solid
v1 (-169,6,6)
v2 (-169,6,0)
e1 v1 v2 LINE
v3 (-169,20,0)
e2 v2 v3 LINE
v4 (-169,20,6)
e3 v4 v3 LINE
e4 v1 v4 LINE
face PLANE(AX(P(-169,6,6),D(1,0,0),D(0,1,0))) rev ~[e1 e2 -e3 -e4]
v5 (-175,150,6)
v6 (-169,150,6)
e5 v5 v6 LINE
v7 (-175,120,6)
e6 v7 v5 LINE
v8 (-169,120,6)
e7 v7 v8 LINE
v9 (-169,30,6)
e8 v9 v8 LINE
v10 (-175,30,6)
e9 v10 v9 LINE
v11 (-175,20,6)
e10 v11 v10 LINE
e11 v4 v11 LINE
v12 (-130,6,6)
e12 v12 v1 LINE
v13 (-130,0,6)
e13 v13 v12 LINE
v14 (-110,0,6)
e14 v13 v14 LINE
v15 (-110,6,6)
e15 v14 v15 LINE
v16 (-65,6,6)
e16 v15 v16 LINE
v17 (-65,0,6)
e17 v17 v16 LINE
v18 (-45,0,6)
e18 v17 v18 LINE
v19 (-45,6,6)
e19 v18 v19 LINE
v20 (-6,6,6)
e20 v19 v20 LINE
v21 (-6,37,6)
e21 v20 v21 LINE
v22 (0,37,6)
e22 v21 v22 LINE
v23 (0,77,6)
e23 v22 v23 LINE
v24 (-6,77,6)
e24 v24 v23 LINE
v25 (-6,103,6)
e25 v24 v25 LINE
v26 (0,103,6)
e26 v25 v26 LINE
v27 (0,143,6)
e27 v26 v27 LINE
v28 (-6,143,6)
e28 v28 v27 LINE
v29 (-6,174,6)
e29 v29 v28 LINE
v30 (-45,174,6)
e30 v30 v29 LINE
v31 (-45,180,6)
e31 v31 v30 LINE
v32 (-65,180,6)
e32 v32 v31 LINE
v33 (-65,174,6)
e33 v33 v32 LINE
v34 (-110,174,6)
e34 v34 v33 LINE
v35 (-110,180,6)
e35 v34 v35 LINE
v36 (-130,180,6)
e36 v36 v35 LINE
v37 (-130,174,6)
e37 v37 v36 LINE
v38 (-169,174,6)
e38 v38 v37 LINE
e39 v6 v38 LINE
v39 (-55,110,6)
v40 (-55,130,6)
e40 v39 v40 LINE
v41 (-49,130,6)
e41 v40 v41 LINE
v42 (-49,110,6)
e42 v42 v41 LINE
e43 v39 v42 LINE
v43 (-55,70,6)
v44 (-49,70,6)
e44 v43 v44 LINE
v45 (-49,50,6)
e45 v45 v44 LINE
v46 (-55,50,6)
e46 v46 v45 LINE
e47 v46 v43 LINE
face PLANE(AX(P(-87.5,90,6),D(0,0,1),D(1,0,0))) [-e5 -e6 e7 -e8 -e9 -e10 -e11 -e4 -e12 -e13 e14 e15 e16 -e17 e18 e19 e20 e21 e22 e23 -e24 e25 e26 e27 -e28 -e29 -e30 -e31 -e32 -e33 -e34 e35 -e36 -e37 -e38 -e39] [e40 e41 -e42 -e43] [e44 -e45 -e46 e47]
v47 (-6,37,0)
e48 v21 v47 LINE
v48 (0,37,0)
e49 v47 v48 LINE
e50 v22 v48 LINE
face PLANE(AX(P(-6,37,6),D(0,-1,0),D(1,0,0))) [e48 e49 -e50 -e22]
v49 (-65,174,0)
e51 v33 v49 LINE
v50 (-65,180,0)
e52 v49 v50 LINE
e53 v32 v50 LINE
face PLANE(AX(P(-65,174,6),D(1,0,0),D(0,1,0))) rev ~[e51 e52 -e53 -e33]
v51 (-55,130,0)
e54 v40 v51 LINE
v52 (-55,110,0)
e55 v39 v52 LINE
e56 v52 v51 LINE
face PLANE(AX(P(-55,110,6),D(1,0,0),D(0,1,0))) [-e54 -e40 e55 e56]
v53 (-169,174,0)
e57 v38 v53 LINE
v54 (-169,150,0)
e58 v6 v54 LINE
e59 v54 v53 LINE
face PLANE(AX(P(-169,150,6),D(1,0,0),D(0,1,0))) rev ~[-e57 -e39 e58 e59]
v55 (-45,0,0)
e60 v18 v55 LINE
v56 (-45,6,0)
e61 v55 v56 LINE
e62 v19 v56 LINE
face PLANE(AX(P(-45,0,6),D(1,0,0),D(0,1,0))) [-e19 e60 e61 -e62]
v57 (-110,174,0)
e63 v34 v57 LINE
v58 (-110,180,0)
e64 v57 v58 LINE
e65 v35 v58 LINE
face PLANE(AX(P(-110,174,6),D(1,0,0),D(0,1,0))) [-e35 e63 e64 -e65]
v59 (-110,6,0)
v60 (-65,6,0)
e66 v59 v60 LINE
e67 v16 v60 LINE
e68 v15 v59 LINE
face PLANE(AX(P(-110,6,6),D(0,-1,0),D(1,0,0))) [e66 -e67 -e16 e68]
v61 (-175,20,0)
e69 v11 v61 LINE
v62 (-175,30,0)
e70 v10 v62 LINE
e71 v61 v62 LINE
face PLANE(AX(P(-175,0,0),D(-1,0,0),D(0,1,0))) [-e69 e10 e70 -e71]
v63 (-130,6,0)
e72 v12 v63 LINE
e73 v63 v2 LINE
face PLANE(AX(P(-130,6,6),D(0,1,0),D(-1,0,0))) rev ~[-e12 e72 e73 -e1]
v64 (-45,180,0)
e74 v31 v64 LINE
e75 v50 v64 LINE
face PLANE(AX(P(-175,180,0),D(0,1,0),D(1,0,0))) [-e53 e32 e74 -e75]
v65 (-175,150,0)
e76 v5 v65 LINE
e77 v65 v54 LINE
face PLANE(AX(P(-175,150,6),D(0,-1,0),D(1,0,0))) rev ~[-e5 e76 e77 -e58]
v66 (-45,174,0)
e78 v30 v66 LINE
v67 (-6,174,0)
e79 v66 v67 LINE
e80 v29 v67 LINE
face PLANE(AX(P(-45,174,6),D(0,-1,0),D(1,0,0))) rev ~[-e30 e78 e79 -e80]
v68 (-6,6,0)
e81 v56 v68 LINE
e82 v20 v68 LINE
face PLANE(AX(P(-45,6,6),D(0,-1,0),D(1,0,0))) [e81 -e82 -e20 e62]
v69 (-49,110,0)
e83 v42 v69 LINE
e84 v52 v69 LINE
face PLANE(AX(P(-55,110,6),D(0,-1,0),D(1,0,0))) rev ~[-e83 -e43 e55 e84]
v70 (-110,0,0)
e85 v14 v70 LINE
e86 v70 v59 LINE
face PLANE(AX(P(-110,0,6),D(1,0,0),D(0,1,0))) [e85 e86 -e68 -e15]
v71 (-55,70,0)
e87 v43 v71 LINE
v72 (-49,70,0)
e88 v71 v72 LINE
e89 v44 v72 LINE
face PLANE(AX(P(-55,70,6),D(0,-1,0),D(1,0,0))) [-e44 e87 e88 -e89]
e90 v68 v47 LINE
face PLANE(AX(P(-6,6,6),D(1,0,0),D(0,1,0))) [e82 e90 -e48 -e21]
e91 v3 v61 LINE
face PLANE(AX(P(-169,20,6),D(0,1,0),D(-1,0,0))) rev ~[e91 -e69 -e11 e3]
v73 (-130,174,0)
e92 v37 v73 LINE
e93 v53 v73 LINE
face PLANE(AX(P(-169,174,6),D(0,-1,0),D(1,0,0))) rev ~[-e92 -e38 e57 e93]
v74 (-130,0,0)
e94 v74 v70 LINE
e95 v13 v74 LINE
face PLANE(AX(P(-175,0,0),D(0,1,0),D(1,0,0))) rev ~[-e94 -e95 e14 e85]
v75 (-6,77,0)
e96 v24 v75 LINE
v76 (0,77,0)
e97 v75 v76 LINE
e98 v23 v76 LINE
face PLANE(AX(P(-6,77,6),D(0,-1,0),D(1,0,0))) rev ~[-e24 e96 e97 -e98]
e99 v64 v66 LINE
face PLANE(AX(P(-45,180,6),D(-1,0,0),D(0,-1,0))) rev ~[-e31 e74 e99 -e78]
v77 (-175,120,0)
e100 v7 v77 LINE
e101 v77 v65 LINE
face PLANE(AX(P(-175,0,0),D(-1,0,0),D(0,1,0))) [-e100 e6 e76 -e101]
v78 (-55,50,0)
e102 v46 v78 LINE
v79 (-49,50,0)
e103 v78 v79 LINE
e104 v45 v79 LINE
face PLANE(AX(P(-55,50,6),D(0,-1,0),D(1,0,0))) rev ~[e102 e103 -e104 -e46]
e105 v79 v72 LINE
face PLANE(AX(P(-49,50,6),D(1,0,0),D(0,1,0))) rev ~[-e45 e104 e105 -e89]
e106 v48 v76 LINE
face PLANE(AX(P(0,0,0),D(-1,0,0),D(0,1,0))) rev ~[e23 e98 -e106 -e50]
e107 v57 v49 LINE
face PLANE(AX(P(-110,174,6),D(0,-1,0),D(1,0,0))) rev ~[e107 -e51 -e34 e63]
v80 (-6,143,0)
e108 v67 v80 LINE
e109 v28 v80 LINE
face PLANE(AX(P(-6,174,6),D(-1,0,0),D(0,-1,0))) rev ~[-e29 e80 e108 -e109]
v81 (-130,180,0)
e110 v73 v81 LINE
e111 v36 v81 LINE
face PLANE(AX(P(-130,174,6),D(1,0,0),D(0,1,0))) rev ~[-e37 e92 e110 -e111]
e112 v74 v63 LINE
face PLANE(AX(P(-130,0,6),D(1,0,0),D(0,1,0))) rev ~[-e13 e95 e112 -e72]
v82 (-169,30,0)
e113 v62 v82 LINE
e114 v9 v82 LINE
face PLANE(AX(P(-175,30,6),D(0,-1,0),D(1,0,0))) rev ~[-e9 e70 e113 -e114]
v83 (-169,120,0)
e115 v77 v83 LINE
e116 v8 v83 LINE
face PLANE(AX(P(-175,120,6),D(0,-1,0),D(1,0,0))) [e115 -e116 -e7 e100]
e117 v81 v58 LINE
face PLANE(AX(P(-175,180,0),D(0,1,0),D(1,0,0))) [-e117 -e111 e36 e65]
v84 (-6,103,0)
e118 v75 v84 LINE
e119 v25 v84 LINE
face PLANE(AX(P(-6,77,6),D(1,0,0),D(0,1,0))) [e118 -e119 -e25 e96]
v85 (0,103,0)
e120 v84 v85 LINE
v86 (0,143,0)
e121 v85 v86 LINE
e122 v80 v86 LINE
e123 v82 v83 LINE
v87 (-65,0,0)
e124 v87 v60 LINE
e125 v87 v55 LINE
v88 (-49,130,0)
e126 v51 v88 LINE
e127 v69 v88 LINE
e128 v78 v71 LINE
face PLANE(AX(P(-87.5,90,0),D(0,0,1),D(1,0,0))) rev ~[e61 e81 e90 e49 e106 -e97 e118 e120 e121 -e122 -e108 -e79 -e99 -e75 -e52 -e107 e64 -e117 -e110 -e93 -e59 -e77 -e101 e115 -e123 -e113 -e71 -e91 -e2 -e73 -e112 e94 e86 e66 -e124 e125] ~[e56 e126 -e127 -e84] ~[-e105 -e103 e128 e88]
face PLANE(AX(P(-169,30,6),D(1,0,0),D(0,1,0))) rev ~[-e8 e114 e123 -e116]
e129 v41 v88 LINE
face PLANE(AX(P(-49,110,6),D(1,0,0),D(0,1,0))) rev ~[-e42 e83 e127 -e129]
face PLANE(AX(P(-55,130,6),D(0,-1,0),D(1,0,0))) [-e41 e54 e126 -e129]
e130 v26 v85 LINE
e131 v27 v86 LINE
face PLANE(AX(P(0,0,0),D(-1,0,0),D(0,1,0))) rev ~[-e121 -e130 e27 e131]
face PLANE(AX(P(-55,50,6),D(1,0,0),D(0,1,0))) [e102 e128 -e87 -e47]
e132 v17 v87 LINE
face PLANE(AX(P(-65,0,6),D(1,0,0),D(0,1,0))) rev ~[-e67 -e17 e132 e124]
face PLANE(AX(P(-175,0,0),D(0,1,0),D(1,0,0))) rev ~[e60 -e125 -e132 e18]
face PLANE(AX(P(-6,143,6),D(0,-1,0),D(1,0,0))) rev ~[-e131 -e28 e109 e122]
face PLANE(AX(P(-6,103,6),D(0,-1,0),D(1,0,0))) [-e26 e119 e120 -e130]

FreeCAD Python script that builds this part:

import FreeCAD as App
import Part
import Sketcher
Q = App.Units.Quantity


def add_polygon(sketch, points):
    """Adds a closed chain of lines whose ends are joined by coincident constraints."""
    first, n = sketch.GeometryCount, len(points)
    for a, b in zip(points, points[1:] + points[:1]):
        sketch.addGeometry(Part.LineSegment(App.Vector(*a, 0), App.Vector(*b, 0)), False)
    for i in range(n):
        sketch.addConstraint(Sketcher.Constraint("Coincident", first + i, 2, first + (i + 1) % n, 1))

doc = App.newDocument("Part")
body = doc.addObject("PartDesign::Body", "Body")

sketch1 = body.newObject("Sketcher::SketchObject", "Sketch")
sketch1.AttachmentSupport = (doc.getObject("XY_Plane"), [""])
sketch1.MapMode = "FlatFace"
add_polygon(sketch1, [(-175, 180), (-175, 0), (0, 0), (0, 180)])
sketch1.addConstraint([
    Sketcher.Constraint("Vertical", 0),
    Sketcher.Constraint("Horizontal", 1),
    Sketcher.Constraint("Vertical", 2),
    Sketcher.Constraint("Horizontal", 3),
    Sketcher.Constraint("Coincident", 1, 2, -1, 1),
    Sketcher.Constraint("DistanceX", 1, 1, 1, 2, Q("175 mm")),
    Sketcher.Constraint("DistanceY", 0, 2, 0, 1, Q("180 mm")),
])
pad1 = body.newObject("PartDesign::Pad", "Pad")
pad1.Profile = sketch1
pad1.Length = 6

sketch2 = body.newObject("Sketcher::SketchObject", "Sketch001")
sketch2.AttachmentSupport = (doc.getObject("XY_Plane"), [""])
sketch2.MapMode = "FlatFace"
sketch2.AttachmentOffset = App.Placement(App.Vector(0, 0, 6), App.Rotation())
add_polygon(sketch2, [(0, 180), (-45, 180), (-45, 174), (-6, 174), (-6, 143), (0, 143)])
add_polygon(sketch2, [(-6, 103), (-6, 77), (0, 77), (0, 103)])
add_polygon(sketch2, [(-45, 0), (0, 0), (0, 37), (-6, 37), (-6, 6), (-45, 6)])
add_polygon(sketch2, [(-175, 0), (-130, 0), (-130, 6), (-169, 6), (-169, 20), (-175, 20)])
add_polygon(sketch2, [(-110, 6), (-110, 0), (-65, 0), (-65, 6)])
add_polygon(sketch2, [(-175, 150), (-169, 150), (-169, 174), (-130, 174), (-130, 180), (-175, 180)])
add_polygon(sketch2, [(-175, 120), (-175, 30), (-169, 30), (-169, 120)])
add_polygon(sketch2, [(-110, 180), (-110, 174), (-65, 174), (-65, 180)])
sketch2.addConstraint([
    Sketcher.Constraint("Horizontal", 0),
    Sketcher.Constraint("Vertical", 1),
    Sketcher.Constraint("Horizontal", 2),
    Sketcher.Constraint("Vertical", 3),
    Sketcher.Constraint("Horizontal", 4),
    Sketcher.Constraint("Vertical", 5),
    Sketcher.Constraint("Vertical", 6),
    Sketcher.Constraint("Horizontal", 7),
    Sketcher.Constraint("Vertical", 8),
    Sketcher.Constraint("Horizontal", 9),
    Sketcher.Constraint("Horizontal", 10),
    Sketcher.Constraint("Vertical", 11),
    Sketcher.Constraint("Horizontal", 12),
    Sketcher.Constraint("Vertical", 13),
    Sketcher.Constraint("Horizontal", 14),
    Sketcher.Constraint("Vertical", 15),
    Sketcher.Constraint("Horizontal", 16),
    Sketcher.Constraint("Vertical", 17),
    Sketcher.Constraint("Horizontal", 18),
    Sketcher.Constraint("Vertical", 19),
    Sketcher.Constraint("Horizontal", 20),
    Sketcher.Constraint("Vertical", 21),
    Sketcher.Constraint("Vertical", 22),
    Sketcher.Constraint("Horizontal", 23),
    Sketcher.Constraint("Vertical", 24),
    Sketcher.Constraint("Horizontal", 25),
    Sketcher.Constraint("Horizontal", 26),
    Sketcher.Constraint("Vertical", 27),
    Sketcher.Constraint("Horizontal", 28),
    Sketcher.Constraint("Vertical", 29),
    Sketcher.Constraint("Horizontal", 30),
    Sketcher.Constraint("Vertical", 31),
    Sketcher.Constraint("Vertical", 32),
    Sketcher.Constraint("Horizontal", 33),
    Sketcher.Constraint("Vertical", 34),
    Sketcher.Constraint("Horizontal", 35),
    Sketcher.Constraint("Vertical", 36),
    Sketcher.Constraint("Horizontal", 37),
    Sketcher.Constraint("Vertical", 38),
    Sketcher.Constraint("Horizontal", 39),
    Sketcher.Constraint("Coincident", 10, 2, -1, 1),
    Sketcher.Constraint("PointOnObject", 4, 2, -2),
    Sketcher.Constraint("PointOnObject", 7, 2, -2),
    Sketcher.Constraint("PointOnObject", 16, 2, -1),
    Sketcher.Constraint("PointOnObject", 22, 2, -1),
    Sketcher.Constraint("Horizontal", 14, 2, 17, 2),
    Sketcher.Constraint("Horizontal", 18, 2, 24, 2),
    Sketcher.Constraint("Horizontal", 2, 2, 27, 2),
    Sketcher.Constraint("Horizontal", 5, 2, 29, 2),
    Sketcher.Constraint("Horizontal", 28, 2, 36, 2),
    Sketcher.Constraint("Horizontal", 30, 2, 38, 2),
    Sketcher.Constraint("Vertical", 3, 2, 6, 2),
    Sketcher.Constraint("Vertical", 9, 2, 12, 2),
    Sketcher.Constraint("Vertical", 1, 2, 14, 2),
    Sketcher.Constraint("Vertical", 19, 2, 26, 2),
    Sketcher.Constraint("Vertical", 17, 2, 28, 2),
    Sketcher.Constraint("Vertical", 21, 2, 30, 2),
    Sketcher.Constraint("Vertical", 31, 2, 32, 2),
    Sketcher.Constraint("Vertical", 27, 2, 33, 2),
    Sketcher.Constraint("Vertical", 25, 2, 36, 2),
    Sketcher.Constraint("Vertical", 24, 2, 37, 2),
    Sketcher.Constraint("Equal", 10, 16),
    Sketcher.Constraint("Equal", 14, 18),
    Sketcher.Constraint("Equal", 16, 23),
    Sketcher.Constraint("Equal", 35, 1),
    Sketcher.Constraint("Equal", 5, 11),
    Sketcher.Constraint("Equal", 3, 13),
    Sketcher.Constraint("DistanceX", 0, 2, 0, 1, Q("45 mm")),
    Sketcher.Constraint("DistanceX", 2, 1, 2, 2, Q("39 mm")),
    Sketcher.Constraint("DistanceY", 3, 2, 3, 1, Q("31 mm")),
    Sketcher.Constraint("DistanceY", 6, 2, 6, 1, Q("26 mm")),
    Sketcher.Constraint("DistanceY", 19, 1, 19, 2, Q("14 mm")),
    Sketcher.Constraint("DistanceY", 27, 1, 27, 2, Q("24 mm")),
    Sketcher.Constraint("DistanceY", 32, 2, 32, 1, Q("90 mm")),
    Sketcher.Constraint("DistanceY", -1, 1, 0, 2, Q("180 mm")),
    Sketcher.Constraint("DistanceY", -1, 1, 6, 2, Q("77 mm")),
    Sketcher.Constraint("DistanceX", 16, 2, -1, 1, Q("130 mm")),
    Sketcher.Constraint("DistanceX", 22, 2, -1, 1, Q("110 mm")),
    Sketcher.Constraint("DistanceY", -1, 1, 32, 2, Q("30 mm")),
])
pocket1 = body.newObject("PartDesign::Pocket", "Pocket")
pocket1.Profile = sketch2
pocket1.Type = "ThroughAll"

sketch3 = body.newObject("Sketcher::SketchObject", "Sketch002")
sketch3.AttachmentSupport = (doc.getObject("XY_Plane"), [""])
sketch3.MapMode = "FlatFace"
sketch3.AttachmentOffset = App.Placement(App.Vector(0, 0, 6), App.Rotation())
add_polygon(sketch3, [(-55, 130), (-55, 110), (-49, 110), (-49, 130)])
add_polygon(sketch3, [(-55, 70), (-55, 50), (-49, 50), (-49, 70)])
sketch3.addConstraint([
    Sketcher.Constraint("Vertical", 0),
    Sketcher.Constraint("Horizontal", 1),
    Sketcher.Constraint("Vertical", 2),
    Sketcher.Constraint("Horizontal", 3),
    Sketcher.Constraint("Vertical", 4),
    Sketcher.Constraint("Horizontal", 5),
    Sketcher.Constraint("Vertical", 6),
    Sketcher.Constraint("Horizontal", 7),
    Sketcher.Constraint("Vertical", 3, 2, 4, 2),
    Sketcher.Constraint("Vertical", 2, 2, 5, 2),
    Sketcher.Constraint("Equal", 2, 4),
    Sketcher.Constraint("DistanceX", 1, 1, 1, 2, Q("6 mm")),
    Sketcher.Constraint("DistanceY", 0, 2, 0, 1, Q("20 mm")),
    Sketcher.Constraint("DistanceX", 0, 2, -1, 1, Q("55 mm")),
    Sketcher.Constraint("DistanceY", -1, 1, 0, 2, Q("110 mm")),
    Sketcher.Constraint("DistanceY", -1, 1, 4, 2, Q("50 mm")),
])
pocket2 = body.newObject("PartDesign::Pocket", "Pocket001")
pocket2.Profile = sketch3
pocket2.Length = 6

doc.recompute()
